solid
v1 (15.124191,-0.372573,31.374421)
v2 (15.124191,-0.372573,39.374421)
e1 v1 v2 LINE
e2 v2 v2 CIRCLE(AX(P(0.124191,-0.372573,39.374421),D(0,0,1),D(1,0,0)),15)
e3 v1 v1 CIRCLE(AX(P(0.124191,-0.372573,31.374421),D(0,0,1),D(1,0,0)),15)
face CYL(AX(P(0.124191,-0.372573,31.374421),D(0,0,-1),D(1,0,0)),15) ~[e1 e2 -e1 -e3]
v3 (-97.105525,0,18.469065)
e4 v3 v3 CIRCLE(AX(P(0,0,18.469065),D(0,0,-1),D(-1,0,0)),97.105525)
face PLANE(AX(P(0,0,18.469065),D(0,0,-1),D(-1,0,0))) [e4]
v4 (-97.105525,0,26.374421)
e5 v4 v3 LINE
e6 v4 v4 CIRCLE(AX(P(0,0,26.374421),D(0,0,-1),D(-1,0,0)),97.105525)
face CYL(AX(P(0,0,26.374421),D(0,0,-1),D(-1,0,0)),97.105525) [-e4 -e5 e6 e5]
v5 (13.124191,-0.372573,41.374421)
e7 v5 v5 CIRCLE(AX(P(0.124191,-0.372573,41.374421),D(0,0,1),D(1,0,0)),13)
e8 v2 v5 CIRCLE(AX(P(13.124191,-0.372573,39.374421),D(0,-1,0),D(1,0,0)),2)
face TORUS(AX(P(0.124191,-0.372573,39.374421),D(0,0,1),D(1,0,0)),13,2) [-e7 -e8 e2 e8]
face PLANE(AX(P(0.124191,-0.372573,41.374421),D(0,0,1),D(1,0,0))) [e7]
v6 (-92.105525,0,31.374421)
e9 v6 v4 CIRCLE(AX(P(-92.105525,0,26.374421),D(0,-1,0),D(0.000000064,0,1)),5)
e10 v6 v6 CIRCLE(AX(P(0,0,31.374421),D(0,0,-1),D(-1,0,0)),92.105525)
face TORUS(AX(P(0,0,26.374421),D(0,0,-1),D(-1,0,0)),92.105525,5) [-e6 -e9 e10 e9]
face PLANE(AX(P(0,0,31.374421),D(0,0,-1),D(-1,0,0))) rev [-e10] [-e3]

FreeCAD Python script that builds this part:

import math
import FreeCAD as App
import Part
import Sketcher
from FreeCAD import Vector


def edges_at(feature, points):
    """Names of the edges that pass closest to the given points."""
    edges = feature.Shape.Edges
    near = lambda p: min(range(len(edges)), key=lambda i: edges[i].distToShape(Part.Vertex(*p))[0])
    return sorted({f"Edge{near(p) + 1}" for p in points})

doc = App.newDocument("Part")
body = doc.addObject("PartDesign::Body", "Body")

# Sketch on XZ plane
sketch1 = body.newObject("Sketcher::SketchObject", "Sketch")
sketch1.AttachmentSupport = (doc.getObject("XZ_Plane"), [""])
sketch1.MapMode = "FlatFace"
sketch1.addGeometry(Part.LineSegment(Vector(-97.1, 26.4, 0), Vector(-97.1, 18.5, 0)), False)
sketch1.addGeometry(Part.LineSegment(Vector(-97.1, 18.5, 0), Vector(0, 18.5, 0)), False)
sketch1.addGeometry(Part.LineSegment(Vector(0, 18.5, 0), Vector(0, 31.4, 0)), False)
sketch1.addGeometry(Part.LineSegment(Vector(0, 31.4, 0), Vector(-92.1, 31.4, 0)), False)
sketch1.addGeometry(Part.ArcOfCircle(Part.Circle(Vector(-92.1, 26.4, 0), Vector(0, 0, 1), 5), math.radians(90), math.radians(180)), False)
sketch1.addConstraint(Sketcher.Constraint("Coincident", 0, 2, 1, 1))
sketch1.addConstraint(Sketcher.Constraint("Coincident", 1, 2, 2, 1))
sketch1.addConstraint(Sketcher.Constraint("Coincident", 2, 2, 3, 1))
sketch1.addConstraint(Sketcher.Constraint("Tangent", 3, 2, 4, 1))
sketch1.addConstraint(Sketcher.Constraint("Tangent", 4, 2, 0, 1))
sketch1.addConstraint(Sketcher.Constraint("Vertical", 0))
sketch1.addConstraint(Sketcher.Constraint("Horizontal", 1))
sketch1.addConstraint(Sketcher.Constraint("Vertical", 2))
sketch1.addConstraint(Sketcher.Constraint("Horizontal", 3))
sketch1.addConstraint(Sketcher.Constraint("PointOnObject", 1, 2, -2))
sketch1.addConstraint(Sketcher.Constraint("Radius", 4, 5.0))
sketch1.addConstraint(Sketcher.Constraint("DistanceX", 1, 1, 1, 2, 97.105525))
sketch1.addConstraint(Sketcher.Constraint("DistanceY", 0, 2, 0, 1, 7.905356))
sketch1.addConstraint(Sketcher.Constraint("DistanceY", -1, 1, 4, 3, 26.374421))
revolution = body.newObject("PartDesign::Revolution", "Revolution")
revolution.Profile = sketch1
revolution.ReferenceAxis = (sketch1, ["V_Axis"])
revolution.Angle = 360

# Sketch on XY plane
sketch2 = body.newObject("Sketcher::SketchObject", "Sketch001")
sketch2.AttachmentSupport = (doc.getObject("XY_Plane"), [""])
sketch2.MapMode = "FlatFace"
sketch2.AttachmentOffset = App.Placement(Vector(0, 0, 31.374421), App.Rotation())
sketch2.addGeometry(Part.Circle(Vector(0, 0, 0), Vector(0, 0, 1), 15), False)
sketch2.addConstraint(Sketcher.Constraint("Diameter", 0, 30.0))
sketch2.addConstraint(Sketcher.Constraint("DistanceX", -1, 1, 0, 3, 0.124191))
sketch2.addConstraint(Sketcher.Constraint("DistanceY", 0, 3, -1, 1, 0.372573))
pad1 = body.newObject("PartDesign::Pad", "Pad")
pad1.Profile = sketch2
pad1.Length = 10
doc.recompute()

fillet = body.newObject("PartDesign::Fillet", "Fillet")
fillet.Base = (pad1, edges_at(pad1, [(-14.876, -0.373, 41.374)]))
fillet.Radius = 2

doc.recompute()
